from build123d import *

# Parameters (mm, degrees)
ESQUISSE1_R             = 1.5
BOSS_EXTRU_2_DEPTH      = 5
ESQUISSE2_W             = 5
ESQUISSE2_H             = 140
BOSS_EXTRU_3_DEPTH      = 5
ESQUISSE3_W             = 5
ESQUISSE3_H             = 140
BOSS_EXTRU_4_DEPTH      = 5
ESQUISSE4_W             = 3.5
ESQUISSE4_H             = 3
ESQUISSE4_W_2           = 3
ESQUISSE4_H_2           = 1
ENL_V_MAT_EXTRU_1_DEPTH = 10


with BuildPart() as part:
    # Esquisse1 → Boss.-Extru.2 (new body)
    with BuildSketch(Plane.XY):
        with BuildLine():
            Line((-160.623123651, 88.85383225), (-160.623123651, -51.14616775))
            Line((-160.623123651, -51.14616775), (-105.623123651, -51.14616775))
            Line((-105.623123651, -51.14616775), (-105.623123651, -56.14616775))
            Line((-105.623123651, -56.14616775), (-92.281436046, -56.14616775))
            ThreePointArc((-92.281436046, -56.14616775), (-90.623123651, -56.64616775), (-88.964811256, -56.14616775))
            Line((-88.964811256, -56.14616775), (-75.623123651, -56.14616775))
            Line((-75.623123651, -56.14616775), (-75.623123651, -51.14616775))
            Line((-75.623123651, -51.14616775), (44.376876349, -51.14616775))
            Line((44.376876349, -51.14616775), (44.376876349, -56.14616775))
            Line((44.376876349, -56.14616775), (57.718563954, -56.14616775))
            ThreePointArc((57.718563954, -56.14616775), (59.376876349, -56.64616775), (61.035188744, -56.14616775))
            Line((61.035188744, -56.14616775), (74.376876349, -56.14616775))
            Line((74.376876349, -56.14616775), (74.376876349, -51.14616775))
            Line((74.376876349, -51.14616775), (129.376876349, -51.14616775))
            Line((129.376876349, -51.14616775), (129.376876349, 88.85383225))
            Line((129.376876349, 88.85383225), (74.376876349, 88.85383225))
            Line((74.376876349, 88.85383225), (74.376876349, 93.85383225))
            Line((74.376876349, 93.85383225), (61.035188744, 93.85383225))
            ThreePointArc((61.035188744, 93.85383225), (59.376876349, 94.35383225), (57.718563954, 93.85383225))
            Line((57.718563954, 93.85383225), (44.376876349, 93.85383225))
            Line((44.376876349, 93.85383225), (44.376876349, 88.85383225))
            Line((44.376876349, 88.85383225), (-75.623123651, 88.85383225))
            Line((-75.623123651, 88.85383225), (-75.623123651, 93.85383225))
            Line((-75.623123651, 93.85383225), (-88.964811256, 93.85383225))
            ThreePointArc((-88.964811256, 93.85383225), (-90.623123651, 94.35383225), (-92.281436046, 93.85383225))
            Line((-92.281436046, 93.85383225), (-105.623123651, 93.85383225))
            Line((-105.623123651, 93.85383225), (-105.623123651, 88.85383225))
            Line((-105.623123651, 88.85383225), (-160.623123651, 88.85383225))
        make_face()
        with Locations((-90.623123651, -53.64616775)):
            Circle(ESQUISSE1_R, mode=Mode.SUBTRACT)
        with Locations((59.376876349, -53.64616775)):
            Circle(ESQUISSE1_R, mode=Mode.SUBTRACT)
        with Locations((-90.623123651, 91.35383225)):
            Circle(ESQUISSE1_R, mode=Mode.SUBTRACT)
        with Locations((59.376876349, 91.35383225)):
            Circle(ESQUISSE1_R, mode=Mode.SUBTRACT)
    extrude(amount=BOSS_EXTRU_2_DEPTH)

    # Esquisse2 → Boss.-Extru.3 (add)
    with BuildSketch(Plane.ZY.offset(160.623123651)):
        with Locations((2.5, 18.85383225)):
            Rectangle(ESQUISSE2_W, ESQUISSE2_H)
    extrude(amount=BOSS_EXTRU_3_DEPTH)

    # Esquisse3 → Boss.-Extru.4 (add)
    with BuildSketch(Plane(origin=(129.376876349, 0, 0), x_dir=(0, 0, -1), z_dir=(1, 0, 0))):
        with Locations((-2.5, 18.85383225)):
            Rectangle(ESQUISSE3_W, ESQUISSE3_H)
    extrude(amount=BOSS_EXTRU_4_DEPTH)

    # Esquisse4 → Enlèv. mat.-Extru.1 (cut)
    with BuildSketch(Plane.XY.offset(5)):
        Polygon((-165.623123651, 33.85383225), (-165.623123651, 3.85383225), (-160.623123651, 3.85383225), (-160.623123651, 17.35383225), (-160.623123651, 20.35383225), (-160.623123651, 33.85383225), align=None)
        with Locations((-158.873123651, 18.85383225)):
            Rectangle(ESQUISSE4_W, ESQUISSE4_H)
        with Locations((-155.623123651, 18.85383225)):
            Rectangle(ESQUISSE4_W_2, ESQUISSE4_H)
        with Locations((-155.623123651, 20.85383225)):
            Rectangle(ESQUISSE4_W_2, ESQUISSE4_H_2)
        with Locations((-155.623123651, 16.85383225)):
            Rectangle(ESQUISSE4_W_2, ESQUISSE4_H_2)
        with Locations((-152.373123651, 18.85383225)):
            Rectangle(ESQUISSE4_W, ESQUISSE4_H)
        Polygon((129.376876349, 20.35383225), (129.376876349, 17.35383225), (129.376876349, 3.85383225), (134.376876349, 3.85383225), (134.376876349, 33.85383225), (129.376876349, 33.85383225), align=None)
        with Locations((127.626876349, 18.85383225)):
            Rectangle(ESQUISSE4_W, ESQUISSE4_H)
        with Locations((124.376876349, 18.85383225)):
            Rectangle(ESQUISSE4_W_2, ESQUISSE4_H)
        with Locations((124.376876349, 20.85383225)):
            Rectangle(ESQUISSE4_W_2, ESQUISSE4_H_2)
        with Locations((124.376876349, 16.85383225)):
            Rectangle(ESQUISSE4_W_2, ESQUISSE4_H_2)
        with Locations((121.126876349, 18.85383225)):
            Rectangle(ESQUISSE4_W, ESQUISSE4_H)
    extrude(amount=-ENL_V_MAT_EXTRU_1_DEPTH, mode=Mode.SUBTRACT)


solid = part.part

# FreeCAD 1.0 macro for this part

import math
import FreeCAD as App
import Part
import Sketcher
Q = App.Units.Quantity


def add_polygon(sketch, points):
    """Adds a closed chain of lines whose ends are joined by coincident constraints."""
    first, n = sketch.GeometryCount, len(points)
    for a, b in zip(points, points[1:] + points[:1]):
        sketch.addGeometry(Part.LineSegment(App.Vector(*a, 0), App.Vector(*b, 0)), False)
    for i in range(n):
        sketch.addConstraint(Sketcher.Constraint("Coincident", first + i, 2, first + (i + 1) % n, 1))

doc = App.newDocument("Part")
params = doc.addObject("Spreadsheet::Sheet", "Params")
for row, (alias, value) in enumerate([
    ("sketch1_diameter", "3 mm"),
    ("sketch1_radius", "3 mm"),
    ("sketch1_width", "55 mm"),
    ("sketch1_width2", "120 mm"),
    ("sketch1_height", "140 mm"),
    ("pad1_length", "5 mm"),
    ("sketch2_width", "140 mm"),
    ("sketch2_height", "5 mm"),
    ("pad2_length", "5 mm"),
    ("sketch3_width", "140 mm"),
    ("sketch3_height", "5 mm"),
    ("pad3_length", "5 mm"),
    ("sketch4_width", "5 mm"),
    ("sketch4_width2", "3 mm"),
    ("sketch4_height", "30 mm"),
    ("sketch4_height2", "1 mm"),
    ("sketch4_width3", "3.5 mm"),
    ("pocket1_length", "10 mm"),
], start=1):
    params.set(f"A{row}", alias)
    params.set(f"B{row}", "=" + value)
    params.setAlias(f"B{row}", alias)

body = doc.addObject("PartDesign::Body", "Body")

# Sketch on XY plane
sketch1 = doc.addObject("Sketcher::SketchObject", "Sketch")
body.addObject(sketch1)
sketch1.AttachmentSupport = (doc.XY_Plane, [""])
sketch1.MapMode = "FlatFace"
sketch1.addGeometry([
    Part.LineSegment(App.Vector(-160.623124, 88.853832, 0), App.Vector(-160.623124, -51.146168, 0)),  # 0
    Part.LineSegment(App.Vector(-160.623124, -51.146168, 0), App.Vector(-105.623124, -51.146168, 0)),  # 1
    Part.LineSegment(App.Vector(-105.623124, -51.146168, 0), App.Vector(-105.623124, -56.146168, 0)),  # 2
    Part.LineSegment(App.Vector(-105.623124, -56.146168, 0), App.Vector(-92.281436, -56.146168, 0)),  # 3
    Part.ArcOfCircle(Part.Circle(App.Vector(-90.623124, -53.646168, 0), App.Vector(0, 0, 1), 3), math.radians(-123.55731), math.radians(-56.44269)),  # 4
    Part.LineSegment(App.Vector(-88.964811, -56.146168, 0), App.Vector(-75.623124, -56.146168, 0)),  # 5
    Part.LineSegment(App.Vector(-75.623124, -56.146168, 0), App.Vector(-75.623124, -51.146168, 0)),  # 6
    Part.LineSegment(App.Vector(-75.623124, -51.146168, 0), App.Vector(44.376876, -51.146168, 0)),  # 7
    Part.LineSegment(App.Vector(44.376876, -51.146168, 0), App.Vector(44.376876, -56.146168, 0)),  # 8
    Part.LineSegment(App.Vector(44.376876, -56.146168, 0), App.Vector(57.718564, -56.146168, 0)),  # 9
    Part.ArcOfCircle(Part.Circle(App.Vector(59.376876, -53.646168, 0), App.Vector(0, 0, 1), 3), math.radians(-123.55731), math.radians(-56.44269)),  # 10
    Part.LineSegment(App.Vector(61.035189, -56.146168, 0), App.Vector(74.376876, -56.146168, 0)),  # 11
    Part.LineSegment(App.Vector(74.376876, -56.146168, 0), App.Vector(74.376876, -51.146168, 0)),  # 12
    Part.LineSegment(App.Vector(74.376876, -51.146168, 0), App.Vector(129.376876, -51.146168, 0)),  # 13
    Part.LineSegment(App.Vector(129.376876, -51.146168, 0), App.Vector(129.376876, 88.853832, 0)),  # 14
    Part.LineSegment(App.Vector(129.376876, 88.853832, 0), App.Vector(74.376876, 88.853832, 0)),  # 15
    Part.LineSegment(App.Vector(74.376876, 88.853832, 0), App.Vector(74.376876, 93.853832, 0)),  # 16
    Part.LineSegment(App.Vector(74.376876, 93.853832, 0), App.Vector(61.035189, 93.853832, 0)),  # 17
    Part.ArcOfCircle(Part.Circle(App.Vector(59.376876, 91.353832, 0), App.Vector(0, 0, 1), 3), math.radians(56.44269), math.radians(123.55731)),  # 18
    Part.LineSegment(App.Vector(57.718564, 93.853832, 0), App.Vector(44.376876, 93.853832, 0)),  # 19
    Part.LineSegment(App.Vector(44.376876, 93.853832, 0), App.Vector(44.376876, 88.853832, 0)),  # 20
    Part.LineSegment(App.Vector(44.376876, 88.853832, 0), App.Vector(-75.623124, 88.853832, 0)),  # 21
    Part.LineSegment(App.Vector(-75.623124, 88.853832, 0), App.Vector(-75.623124, 93.853832, 0)),  # 22
    Part.LineSegment(App.Vector(-75.623124, 93.853832, 0), App.Vector(-88.964811, 93.853832, 0)),  # 23
    Part.ArcOfCircle(Part.Circle(App.Vector(-90.623124, 91.353832, 0), App.Vector(0, 0, 1), 3), math.radians(56.44269), math.radians(123.55731)),  # 24
    Part.LineSegment(App.Vector(-92.281436, 93.853832, 0), App.Vector(-105.623124, 93.853832, 0)),  # 25
    Part.LineSegment(App.Vector(-105.623124, 93.853832, 0), App.Vector(-105.623124, 88.853832, 0)),  # 26
    Part.LineSegment(App.Vector(-105.623124, 88.853832, 0), App.Vector(-160.623124, 88.853832, 0)),  # 27
    Part.Circle(App.Vector(-90.623124, -53.646168, 0), App.Vector(0, 0, 1), 1.5),  # 28
    Part.Circle(App.Vector(59.376876, -53.646168, 0), App.Vector(0, 0, 1), 1.5),  # 29
    Part.Circle(App.Vector(-90.623124, 91.353832, 0), App.Vector(0, 0, 1), 1.5),  # 30
    Part.Circle(App.Vector(59.376876, 91.353832, 0), App.Vector(0, 0, 1), 1.5),  # 31
], False)
sketch1.addConstraint([
    Sketcher.Constraint("Coincident", 0, 2, 1, 1),
    Sketcher.Constraint("Coincident", 1, 2, 2, 1),
    Sketcher.Constraint("Coincident", 2, 2, 3, 1),
    Sketcher.Constraint("Coincident", 3, 2, 4, 1),
    Sketcher.Constraint("Coincident", 4, 2, 5, 1),
    Sketcher.Constraint("Coincident", 5, 2, 6, 1),
    Sketcher.Constraint("Coincident", 6, 2, 7, 1),
    Sketcher.Constraint("Coincident", 7, 2, 8, 1),
    Sketcher.Constraint("Coincident", 8, 2, 9, 1),
    Sketcher.Constraint("Coincident", 9, 2, 10, 1),
    Sketcher.Constraint("Coincident", 10, 2, 11, 1),
    Sketcher.Constraint("Coincident", 11, 2, 12, 1),
    Sketcher.Constraint("Coincident", 12, 2, 13, 1),
    Sketcher.Constraint("Coincident", 13, 2, 14, 1),
    Sketcher.Constraint("Coincident", 14, 2, 15, 1),
    Sketcher.Constraint("Coincident", 15, 2, 16, 1),
    Sketcher.Constraint("Coincident", 16, 2, 17, 1),
    Sketcher.Constraint("Coincident", 17, 2, 18, 1),
    Sketcher.Constraint("Coincident", 18, 2, 19, 1),
    Sketcher.Constraint("Coincident", 19, 2, 20, 1),
    Sketcher.Constraint("Coincident", 20, 2, 21, 1),
    Sketcher.Constraint("Coincident", 21, 2, 22, 1),
    Sketcher.Constraint("Coincident", 22, 2, 23, 1),
    Sketcher.Constraint("Coincident", 23, 2, 24, 1),
    Sketcher.Constraint("Coincident", 24, 2, 25, 1),
    Sketcher.Constraint("Coincident", 25, 2, 26, 1),
    Sketcher.Constraint("Coincident", 26, 2, 27, 1),
    Sketcher.Constraint("Coincident", 27, 2, 0, 1),
    Sketcher.Constraint("Vertical", 0),
    Sketcher.Constraint("Horizontal", 1),
    Sketcher.Constraint("Vertical", 2),
    Sketcher.Constraint("Horizontal", 3),
    Sketcher.Constraint("Horizontal", 5),
    Sketcher.Constraint("Vertical", 6),
    Sketcher.Constraint("Horizontal", 7),
    Sketcher.Constraint("Vertical", 8),
    Sketcher.Constraint("Horizontal", 9),
    Sketcher.Constraint("Horizontal", 11),
    Sketcher.Constraint("Vertical", 12),
    Sketcher.Constraint("Horizontal", 13),
    Sketcher.Constraint("Vertical", 14),
    Sketcher.Constraint("Horizontal", 15),
    Sketcher.Constraint("Vertical", 16),
    Sketcher.Constraint("Horizontal", 17),
    Sketcher.Constraint("Horizontal", 19),
    Sketcher.Constraint("Vertical", 20),
    Sketcher.Constraint("Horizontal", 21),
    Sketcher.Constraint("Vertical", 22),
    Sketcher.Constraint("Horizontal", 23),
    Sketcher.Constraint("Horizontal", 25),
    Sketcher.Constraint("Vertical", 26),
    Sketcher.Constraint("Horizontal", 27),
    Sketcher.Constraint("Coincident", 28, 3, 4, 3),
    Sketcher.Constraint("Coincident", 29, 3, 10, 3),
    Sketcher.Constraint("Coincident", 30, 3, 24, 3),
    Sketcher.Constraint("Coincident", 31, 3, 18, 3),
    Sketcher.Constraint("Equal", 4, 10),
    Sketcher.Constraint("Equal", 10, 18),
    Sketcher.Constraint("Equal", 18, 24),
    Sketcher.Constraint("Equal", 28, 29),
    Sketcher.Constraint("Equal", 29, 30),
    Sketcher.Constraint("Equal", 30, 31),
    Sketcher.Constraint("Horizontal", 4, 3, 10, 3),
    Sketcher.Constraint("Horizontal", 18, 3, 24, 3),
    Sketcher.Constraint("Horizontal", 3, 2, 4, 2),
    Sketcher.Constraint("Horizontal", 1, 2, 6, 2),
    Sketcher.Constraint("Horizontal", 5, 2, 8, 2),
    Sketcher.Constraint("Horizontal", 9, 2, 10, 2),
    Sketcher.Constraint("Horizontal", 7, 2, 12, 2),
    Sketcher.Constraint("Horizontal", 17, 2, 18, 2),
    Sketcher.Constraint("Horizontal", 15, 2, 20, 2),
    Sketcher.Constraint("Horizontal", 19, 2, 22, 2),
    Sketcher.Constraint("Horizontal", 23, 2, 24, 2),
    Sketcher.Constraint("Horizontal", 21, 2, 26, 2),
    Sketcher.Constraint("Vertical", 10, 3, 18, 3),
    Sketcher.Constraint("Vertical", 4, 3, 24, 3),
    Sketcher.Constraint("Vertical", 12, 2, 15, 2),
    Sketcher.Constraint("Vertical", 10, 2, 17, 2),
    Sketcher.Constraint("Vertical", 8, 2, 19, 2),
    Sketcher.Constraint("Vertical", 6, 2, 21, 2),
    Sketcher.Constraint("Vertical", 2, 2, 25, 2),
    Sketcher.Constraint("Equal", 3, 5),
    Sketcher.Constraint("Equal", 5, 9),
    Sketcher.Constraint("Equal", 9, 11),
    Sketcher.Constraint("Equal", 1, 13),
    Sketcher.Constraint("Equal", 12, 16),
    Sketcher.Constraint("Diameter", 28, Q("3 mm")),
    Sketcher.Constraint("Radius", 4, Q("3 mm")),
    Sketcher.Constraint("DistanceX", 1, 1, 1, 2, Q("55 mm")),
    Sketcher.Constraint("DistanceX", 7, 1, 7, 2, Q("120 mm")),
    Sketcher.Constraint("DistanceY", 0, 2, 0, 1, Q("140 mm")),
    Sketcher.Constraint("DistanceY", 2, 2, 2, 1, Q("5 mm")),
    Sketcher.Constraint("DistanceX", 4, 3, 10, 3, Q("150 mm")),
    Sketcher.Constraint("DistanceY", 10, 3, 18, 3, Q("145 mm")),
    Sketcher.Constraint("DistanceX", 4, 2, -1, 1, Q("88.964811 mm")),
    Sketcher.Constraint("DistanceY", 4, 3, -1, 1, Q("53.646168 mm")),
])
sketch1.setExpression("Constraints[86]", "Params.sketch1_diameter")
sketch1.setExpression("Constraints[87]", "Params.sketch1_radius")
sketch1.setExpression("Constraints[88]", "Params.sketch1_width")
sketch1.setExpression("Constraints[89]", "Params.sketch1_width2")
sketch1.setExpression("Constraints[90]", "Params.sketch1_height")
pad1 = doc.addObject("PartDesign::Pad", "Pad")
body.addObject(pad1)
pad1.Profile = sketch1
pad1.setExpression("Length", "Params.pad1_length")

# Sketch on YZ plane
sketch2 = doc.addObject("Sketcher::SketchObject", "Sketch001")
body.addObject(sketch2)
sketch2.AttachmentSupport = (doc.YZ_Plane, [""])
sketch2.MapMode = "FlatFace"
sketch2.AttachmentOffset = App.Placement(App.Vector(0, 0, -160.623124), App.Rotation())
add_polygon(sketch2, [(88.853832, 0), (-51.146168, 0), (-51.146168, 5), (88.853832, 5)])  # lines 0-3
sketch2.addConstraint([
    Sketcher.Constraint("Horizontal", 0),
    Sketcher.Constraint("Vertical", 1),
    Sketcher.Constraint("Horizontal", 2),
    Sketcher.Constraint("Vertical", 3),
    Sketcher.Constraint("PointOnObject", 0, 2, -1),
    Sketcher.Constraint("DistanceX", 0, 2, 0, 1, Q("140 mm")),
    Sketcher.Constraint("DistanceY", 1, 1, 1, 2, Q("5 mm")),
    Sketcher.Constraint("DistanceX", 0, 2, -1, 1, Q("51.146168 mm")),
])
sketch2.setExpression("Constraints[9]", "Params.sketch2_width")
sketch2.setExpression("Constraints[10]", "Params.sketch2_height")
pad2 = doc.addObject("PartDesign::Pad", "Pad001")
body.addObject(pad2)
pad2.Profile = sketch2
pad2.setExpression("Length", "Params.pad2_length")
pad2.Reversed = True

# Sketch on YZ plane
sketch3 = doc.addObject("Sketcher::SketchObject", "Sketch002")
body.addObject(sketch3)
sketch3.AttachmentSupport = (doc.YZ_Plane, [""])
sketch3.MapMode = "FlatFace"
sketch3.AttachmentOffset = App.Placement(App.Vector(0, 0, 129.376876), App.Rotation())
add_polygon(sketch3, [(88.853832, 5), (-51.146168, 5), (-51.146168, 0), (88.853832, 0)])  # lines 0-3
sketch3.addConstraint([
    Sketcher.Constraint("Horizontal", 0),
    Sketcher.Constraint("Vertical", 1),
    Sketcher.Constraint("Horizontal", 2),
    Sketcher.Constraint("Vertical", 3),
    Sketcher.Constraint("PointOnObject", 1, 2, -1),
    Sketcher.Constraint("DistanceX", 0, 2, 0, 1, Q("140 mm")),
    Sketcher.Constraint("DistanceY", 1, 2, 1, 1, Q("5 mm")),
    Sketcher.Constraint("DistanceX", 0, 2, -1, 1, Q("51.146168 mm")),
])
sketch3.setExpression("Constraints[9]", "Params.sketch3_width")
sketch3.setExpression("Constraints[10]", "Params.sketch3_height")
pad3 = doc.addObject("PartDesign::Pad", "Pad002")
body.addObject(pad3)
pad3.Profile = sketch3
pad3.setExpression("Length", "Params.pad3_length")

# Sketch on XY plane
sketch4 = doc.addObject("Sketcher::SketchObject", "Sketch003")
body.addObject(sketch4)
sketch4.AttachmentSupport = (doc.XY_Plane, [""])
sketch4.MapMode = "FlatFace"
sketch4.AttachmentOffset = App.Placement(App.Vector(0, 0, 5), App.Rotation())
add_polygon(sketch4, [(-165.623124, 33.853832), (-165.623124, 3.853832), (-160.623124, 3.853832), (-160.623124, 17.353832), (-157.123124, 17.353832), (-157.123124, 16.353832), (-154.123124, 16.353832), (-154.123124, 17.353832), (-150.623124, 17.353832), (-150.623124, 20.353832), (-154.123124, 20.353832), (-154.123124, 21.353832), (-157.123124, 21.353832), (-157.123124, 20.353832), (-160.623124, 20.353832), (-160.623124, 33.853832)])  # lines 0-15
add_polygon(sketch4, [(129.376876, 3.853832), (134.376876, 3.853832), (134.376876, 33.853832), (129.376876, 33.853832), (129.376876, 20.353832), (125.876876, 20.353832), (125.876876, 21.353832), (122.876876, 21.353832), (122.876876, 20.353832), (119.376876, 20.353832), (119.376876, 17.353832), (122.876876, 17.353832), (122.876876, 16.353832), (125.876876, 16.353832), (125.876876, 17.353832), (129.376876, 17.353832)])  # lines 16-31
sketch4.addConstraint([
    Sketcher.Constraint("Vertical", 0),
    Sketcher.Constraint("Horizontal", 1),
    Sketcher.Constraint("Vertical", 2),
    Sketcher.Constraint("Horizontal", 3),
    Sketcher.Constraint("Vertical", 4),
    Sketcher.Constraint("Horizontal", 5),
    Sketcher.Constraint("Vertical", 6),
    Sketcher.Constraint("Horizontal", 7),
    Sketcher.Constraint("Vertical", 8),
    Sketcher.Constraint("Horizontal", 9),
    Sketcher.Constraint("Vertical", 10),
    Sketcher.Constraint("Horizontal", 11),
    Sketcher.Constraint("Vertical", 12),
    Sketcher.Constraint("Horizontal", 13),
    Sketcher.Constraint("Vertical", 14),
    Sketcher.Constraint("Horizontal", 15),
    Sketcher.Constraint("Horizontal", 16),
    Sketcher.Constraint("Vertical", 17),
    Sketcher.Constraint("Horizontal", 18),
    Sketcher.Constraint("Vertical", 19),
    Sketcher.Constraint("Horizontal", 20),
    Sketcher.Constraint("Vertical", 21),
    Sketcher.Constraint("Horizontal", 22),
    Sketcher.Constraint("Vertical", 23),
    Sketcher.Constraint("Horizontal", 24),
    Sketcher.Constraint("Vertical", 25),
    Sketcher.Constraint("Horizontal", 26),
    Sketcher.Constraint("Vertical", 27),
    Sketcher.Constraint("Horizontal", 28),
    Sketcher.Constraint("Vertical", 29),
    Sketcher.Constraint("Horizontal", 30),
    Sketcher.Constraint("Vertical", 31),
    Sketcher.Constraint("Horizontal", 3, 2, 6, 2),
    Sketcher.Constraint("Horizontal", 9, 2, 12, 2),
    Sketcher.Constraint("Horizontal", 1, 2, 16, 2),
    Sketcher.Constraint("Horizontal", 15, 2, 17, 2),
    Sketcher.Constraint("Horizontal", 13, 2, 19, 2),
    Sketcher.Constraint("Horizontal", 11, 2, 21, 2),
    Sketcher.Constraint("Horizontal", 20, 2, 23, 2),
    Sketcher.Constraint("Horizontal", 7, 2, 25, 2),
    Sketcher.Constraint("Horizontal", 5, 2, 27, 2),
    Sketcher.Constraint("Horizontal", 26, 2, 29, 2),
    Sketcher.Constraint("Vertical", 6, 2, 9, 2),
    Sketcher.Constraint("Vertical", 4, 2, 11, 2),
    Sketcher.Constraint("Vertical", 2, 2, 13, 2),
    Sketcher.Constraint("Vertical", 23, 2, 26, 2),
    Sketcher.Constraint("Vertical", 21, 2, 28, 2),
    Sketcher.Constraint("Vertical", 19, 2, 30, 2),
    Sketcher.Constraint("Equal", 3, 7),
    Sketcher.Constraint("Equal", 15, 16),
    Sketcher.Constraint("Equal", 13, 20),
    Sketcher.Constraint("Equal", 11, 22),
    Sketcher.Constraint("Equal", 20, 24),
    Sketcher.Constraint("Equal", 28, 8),
    Sketcher.Constraint("Equal", 6, 10),
    Sketcher.Constraint("Equal", 2, 14),
    Sketcher.Constraint("DistanceX", 1, 1, 1, 2, Q("5 mm")),
    Sketcher.Constraint("DistanceX", 5, 1, 5, 2, Q("3 mm")),
    Sketcher.Constraint("DistanceY", 0, 2, 0, 1, Q("30 mm")),
    Sketcher.Constraint("DistanceY", 4, 2, 4, 1, Q("1 mm")),
    Sketcher.Constraint("DistanceX", 3, 1, 3, 2, Q("3.5 mm")),
    Sketcher.Constraint("DistanceX", 7, 2, 16, 2, Q("285 mm")),
    Sketcher.Constraint("DistanceX", 0, 2, -1, 1, Q("165.623124 mm")),
    Sketcher.Constraint("DistanceY", -1, 1, 0, 2, Q("3.853832 mm")),
])
sketch4.setExpression("Constraints[88]", "Params.sketch4_width")
sketch4.setExpression("Constraints[89]", "Params.sketch4_width2")
sketch4.setExpression("Constraints[90]", "Params.sketch4_height")
sketch4.setExpression("Constraints[91]", "Params.sketch4_height2")
sketch4.setExpression("Constraints[92]", "Params.sketch4_width3")
pocket1 = doc.addObject("PartDesign::Pocket", "Pocket")
body.addObject(pocket1)
pocket1.Profile = sketch4
pocket1.setExpression("Length", "Params.pocket1_length")

doc.recompute()
